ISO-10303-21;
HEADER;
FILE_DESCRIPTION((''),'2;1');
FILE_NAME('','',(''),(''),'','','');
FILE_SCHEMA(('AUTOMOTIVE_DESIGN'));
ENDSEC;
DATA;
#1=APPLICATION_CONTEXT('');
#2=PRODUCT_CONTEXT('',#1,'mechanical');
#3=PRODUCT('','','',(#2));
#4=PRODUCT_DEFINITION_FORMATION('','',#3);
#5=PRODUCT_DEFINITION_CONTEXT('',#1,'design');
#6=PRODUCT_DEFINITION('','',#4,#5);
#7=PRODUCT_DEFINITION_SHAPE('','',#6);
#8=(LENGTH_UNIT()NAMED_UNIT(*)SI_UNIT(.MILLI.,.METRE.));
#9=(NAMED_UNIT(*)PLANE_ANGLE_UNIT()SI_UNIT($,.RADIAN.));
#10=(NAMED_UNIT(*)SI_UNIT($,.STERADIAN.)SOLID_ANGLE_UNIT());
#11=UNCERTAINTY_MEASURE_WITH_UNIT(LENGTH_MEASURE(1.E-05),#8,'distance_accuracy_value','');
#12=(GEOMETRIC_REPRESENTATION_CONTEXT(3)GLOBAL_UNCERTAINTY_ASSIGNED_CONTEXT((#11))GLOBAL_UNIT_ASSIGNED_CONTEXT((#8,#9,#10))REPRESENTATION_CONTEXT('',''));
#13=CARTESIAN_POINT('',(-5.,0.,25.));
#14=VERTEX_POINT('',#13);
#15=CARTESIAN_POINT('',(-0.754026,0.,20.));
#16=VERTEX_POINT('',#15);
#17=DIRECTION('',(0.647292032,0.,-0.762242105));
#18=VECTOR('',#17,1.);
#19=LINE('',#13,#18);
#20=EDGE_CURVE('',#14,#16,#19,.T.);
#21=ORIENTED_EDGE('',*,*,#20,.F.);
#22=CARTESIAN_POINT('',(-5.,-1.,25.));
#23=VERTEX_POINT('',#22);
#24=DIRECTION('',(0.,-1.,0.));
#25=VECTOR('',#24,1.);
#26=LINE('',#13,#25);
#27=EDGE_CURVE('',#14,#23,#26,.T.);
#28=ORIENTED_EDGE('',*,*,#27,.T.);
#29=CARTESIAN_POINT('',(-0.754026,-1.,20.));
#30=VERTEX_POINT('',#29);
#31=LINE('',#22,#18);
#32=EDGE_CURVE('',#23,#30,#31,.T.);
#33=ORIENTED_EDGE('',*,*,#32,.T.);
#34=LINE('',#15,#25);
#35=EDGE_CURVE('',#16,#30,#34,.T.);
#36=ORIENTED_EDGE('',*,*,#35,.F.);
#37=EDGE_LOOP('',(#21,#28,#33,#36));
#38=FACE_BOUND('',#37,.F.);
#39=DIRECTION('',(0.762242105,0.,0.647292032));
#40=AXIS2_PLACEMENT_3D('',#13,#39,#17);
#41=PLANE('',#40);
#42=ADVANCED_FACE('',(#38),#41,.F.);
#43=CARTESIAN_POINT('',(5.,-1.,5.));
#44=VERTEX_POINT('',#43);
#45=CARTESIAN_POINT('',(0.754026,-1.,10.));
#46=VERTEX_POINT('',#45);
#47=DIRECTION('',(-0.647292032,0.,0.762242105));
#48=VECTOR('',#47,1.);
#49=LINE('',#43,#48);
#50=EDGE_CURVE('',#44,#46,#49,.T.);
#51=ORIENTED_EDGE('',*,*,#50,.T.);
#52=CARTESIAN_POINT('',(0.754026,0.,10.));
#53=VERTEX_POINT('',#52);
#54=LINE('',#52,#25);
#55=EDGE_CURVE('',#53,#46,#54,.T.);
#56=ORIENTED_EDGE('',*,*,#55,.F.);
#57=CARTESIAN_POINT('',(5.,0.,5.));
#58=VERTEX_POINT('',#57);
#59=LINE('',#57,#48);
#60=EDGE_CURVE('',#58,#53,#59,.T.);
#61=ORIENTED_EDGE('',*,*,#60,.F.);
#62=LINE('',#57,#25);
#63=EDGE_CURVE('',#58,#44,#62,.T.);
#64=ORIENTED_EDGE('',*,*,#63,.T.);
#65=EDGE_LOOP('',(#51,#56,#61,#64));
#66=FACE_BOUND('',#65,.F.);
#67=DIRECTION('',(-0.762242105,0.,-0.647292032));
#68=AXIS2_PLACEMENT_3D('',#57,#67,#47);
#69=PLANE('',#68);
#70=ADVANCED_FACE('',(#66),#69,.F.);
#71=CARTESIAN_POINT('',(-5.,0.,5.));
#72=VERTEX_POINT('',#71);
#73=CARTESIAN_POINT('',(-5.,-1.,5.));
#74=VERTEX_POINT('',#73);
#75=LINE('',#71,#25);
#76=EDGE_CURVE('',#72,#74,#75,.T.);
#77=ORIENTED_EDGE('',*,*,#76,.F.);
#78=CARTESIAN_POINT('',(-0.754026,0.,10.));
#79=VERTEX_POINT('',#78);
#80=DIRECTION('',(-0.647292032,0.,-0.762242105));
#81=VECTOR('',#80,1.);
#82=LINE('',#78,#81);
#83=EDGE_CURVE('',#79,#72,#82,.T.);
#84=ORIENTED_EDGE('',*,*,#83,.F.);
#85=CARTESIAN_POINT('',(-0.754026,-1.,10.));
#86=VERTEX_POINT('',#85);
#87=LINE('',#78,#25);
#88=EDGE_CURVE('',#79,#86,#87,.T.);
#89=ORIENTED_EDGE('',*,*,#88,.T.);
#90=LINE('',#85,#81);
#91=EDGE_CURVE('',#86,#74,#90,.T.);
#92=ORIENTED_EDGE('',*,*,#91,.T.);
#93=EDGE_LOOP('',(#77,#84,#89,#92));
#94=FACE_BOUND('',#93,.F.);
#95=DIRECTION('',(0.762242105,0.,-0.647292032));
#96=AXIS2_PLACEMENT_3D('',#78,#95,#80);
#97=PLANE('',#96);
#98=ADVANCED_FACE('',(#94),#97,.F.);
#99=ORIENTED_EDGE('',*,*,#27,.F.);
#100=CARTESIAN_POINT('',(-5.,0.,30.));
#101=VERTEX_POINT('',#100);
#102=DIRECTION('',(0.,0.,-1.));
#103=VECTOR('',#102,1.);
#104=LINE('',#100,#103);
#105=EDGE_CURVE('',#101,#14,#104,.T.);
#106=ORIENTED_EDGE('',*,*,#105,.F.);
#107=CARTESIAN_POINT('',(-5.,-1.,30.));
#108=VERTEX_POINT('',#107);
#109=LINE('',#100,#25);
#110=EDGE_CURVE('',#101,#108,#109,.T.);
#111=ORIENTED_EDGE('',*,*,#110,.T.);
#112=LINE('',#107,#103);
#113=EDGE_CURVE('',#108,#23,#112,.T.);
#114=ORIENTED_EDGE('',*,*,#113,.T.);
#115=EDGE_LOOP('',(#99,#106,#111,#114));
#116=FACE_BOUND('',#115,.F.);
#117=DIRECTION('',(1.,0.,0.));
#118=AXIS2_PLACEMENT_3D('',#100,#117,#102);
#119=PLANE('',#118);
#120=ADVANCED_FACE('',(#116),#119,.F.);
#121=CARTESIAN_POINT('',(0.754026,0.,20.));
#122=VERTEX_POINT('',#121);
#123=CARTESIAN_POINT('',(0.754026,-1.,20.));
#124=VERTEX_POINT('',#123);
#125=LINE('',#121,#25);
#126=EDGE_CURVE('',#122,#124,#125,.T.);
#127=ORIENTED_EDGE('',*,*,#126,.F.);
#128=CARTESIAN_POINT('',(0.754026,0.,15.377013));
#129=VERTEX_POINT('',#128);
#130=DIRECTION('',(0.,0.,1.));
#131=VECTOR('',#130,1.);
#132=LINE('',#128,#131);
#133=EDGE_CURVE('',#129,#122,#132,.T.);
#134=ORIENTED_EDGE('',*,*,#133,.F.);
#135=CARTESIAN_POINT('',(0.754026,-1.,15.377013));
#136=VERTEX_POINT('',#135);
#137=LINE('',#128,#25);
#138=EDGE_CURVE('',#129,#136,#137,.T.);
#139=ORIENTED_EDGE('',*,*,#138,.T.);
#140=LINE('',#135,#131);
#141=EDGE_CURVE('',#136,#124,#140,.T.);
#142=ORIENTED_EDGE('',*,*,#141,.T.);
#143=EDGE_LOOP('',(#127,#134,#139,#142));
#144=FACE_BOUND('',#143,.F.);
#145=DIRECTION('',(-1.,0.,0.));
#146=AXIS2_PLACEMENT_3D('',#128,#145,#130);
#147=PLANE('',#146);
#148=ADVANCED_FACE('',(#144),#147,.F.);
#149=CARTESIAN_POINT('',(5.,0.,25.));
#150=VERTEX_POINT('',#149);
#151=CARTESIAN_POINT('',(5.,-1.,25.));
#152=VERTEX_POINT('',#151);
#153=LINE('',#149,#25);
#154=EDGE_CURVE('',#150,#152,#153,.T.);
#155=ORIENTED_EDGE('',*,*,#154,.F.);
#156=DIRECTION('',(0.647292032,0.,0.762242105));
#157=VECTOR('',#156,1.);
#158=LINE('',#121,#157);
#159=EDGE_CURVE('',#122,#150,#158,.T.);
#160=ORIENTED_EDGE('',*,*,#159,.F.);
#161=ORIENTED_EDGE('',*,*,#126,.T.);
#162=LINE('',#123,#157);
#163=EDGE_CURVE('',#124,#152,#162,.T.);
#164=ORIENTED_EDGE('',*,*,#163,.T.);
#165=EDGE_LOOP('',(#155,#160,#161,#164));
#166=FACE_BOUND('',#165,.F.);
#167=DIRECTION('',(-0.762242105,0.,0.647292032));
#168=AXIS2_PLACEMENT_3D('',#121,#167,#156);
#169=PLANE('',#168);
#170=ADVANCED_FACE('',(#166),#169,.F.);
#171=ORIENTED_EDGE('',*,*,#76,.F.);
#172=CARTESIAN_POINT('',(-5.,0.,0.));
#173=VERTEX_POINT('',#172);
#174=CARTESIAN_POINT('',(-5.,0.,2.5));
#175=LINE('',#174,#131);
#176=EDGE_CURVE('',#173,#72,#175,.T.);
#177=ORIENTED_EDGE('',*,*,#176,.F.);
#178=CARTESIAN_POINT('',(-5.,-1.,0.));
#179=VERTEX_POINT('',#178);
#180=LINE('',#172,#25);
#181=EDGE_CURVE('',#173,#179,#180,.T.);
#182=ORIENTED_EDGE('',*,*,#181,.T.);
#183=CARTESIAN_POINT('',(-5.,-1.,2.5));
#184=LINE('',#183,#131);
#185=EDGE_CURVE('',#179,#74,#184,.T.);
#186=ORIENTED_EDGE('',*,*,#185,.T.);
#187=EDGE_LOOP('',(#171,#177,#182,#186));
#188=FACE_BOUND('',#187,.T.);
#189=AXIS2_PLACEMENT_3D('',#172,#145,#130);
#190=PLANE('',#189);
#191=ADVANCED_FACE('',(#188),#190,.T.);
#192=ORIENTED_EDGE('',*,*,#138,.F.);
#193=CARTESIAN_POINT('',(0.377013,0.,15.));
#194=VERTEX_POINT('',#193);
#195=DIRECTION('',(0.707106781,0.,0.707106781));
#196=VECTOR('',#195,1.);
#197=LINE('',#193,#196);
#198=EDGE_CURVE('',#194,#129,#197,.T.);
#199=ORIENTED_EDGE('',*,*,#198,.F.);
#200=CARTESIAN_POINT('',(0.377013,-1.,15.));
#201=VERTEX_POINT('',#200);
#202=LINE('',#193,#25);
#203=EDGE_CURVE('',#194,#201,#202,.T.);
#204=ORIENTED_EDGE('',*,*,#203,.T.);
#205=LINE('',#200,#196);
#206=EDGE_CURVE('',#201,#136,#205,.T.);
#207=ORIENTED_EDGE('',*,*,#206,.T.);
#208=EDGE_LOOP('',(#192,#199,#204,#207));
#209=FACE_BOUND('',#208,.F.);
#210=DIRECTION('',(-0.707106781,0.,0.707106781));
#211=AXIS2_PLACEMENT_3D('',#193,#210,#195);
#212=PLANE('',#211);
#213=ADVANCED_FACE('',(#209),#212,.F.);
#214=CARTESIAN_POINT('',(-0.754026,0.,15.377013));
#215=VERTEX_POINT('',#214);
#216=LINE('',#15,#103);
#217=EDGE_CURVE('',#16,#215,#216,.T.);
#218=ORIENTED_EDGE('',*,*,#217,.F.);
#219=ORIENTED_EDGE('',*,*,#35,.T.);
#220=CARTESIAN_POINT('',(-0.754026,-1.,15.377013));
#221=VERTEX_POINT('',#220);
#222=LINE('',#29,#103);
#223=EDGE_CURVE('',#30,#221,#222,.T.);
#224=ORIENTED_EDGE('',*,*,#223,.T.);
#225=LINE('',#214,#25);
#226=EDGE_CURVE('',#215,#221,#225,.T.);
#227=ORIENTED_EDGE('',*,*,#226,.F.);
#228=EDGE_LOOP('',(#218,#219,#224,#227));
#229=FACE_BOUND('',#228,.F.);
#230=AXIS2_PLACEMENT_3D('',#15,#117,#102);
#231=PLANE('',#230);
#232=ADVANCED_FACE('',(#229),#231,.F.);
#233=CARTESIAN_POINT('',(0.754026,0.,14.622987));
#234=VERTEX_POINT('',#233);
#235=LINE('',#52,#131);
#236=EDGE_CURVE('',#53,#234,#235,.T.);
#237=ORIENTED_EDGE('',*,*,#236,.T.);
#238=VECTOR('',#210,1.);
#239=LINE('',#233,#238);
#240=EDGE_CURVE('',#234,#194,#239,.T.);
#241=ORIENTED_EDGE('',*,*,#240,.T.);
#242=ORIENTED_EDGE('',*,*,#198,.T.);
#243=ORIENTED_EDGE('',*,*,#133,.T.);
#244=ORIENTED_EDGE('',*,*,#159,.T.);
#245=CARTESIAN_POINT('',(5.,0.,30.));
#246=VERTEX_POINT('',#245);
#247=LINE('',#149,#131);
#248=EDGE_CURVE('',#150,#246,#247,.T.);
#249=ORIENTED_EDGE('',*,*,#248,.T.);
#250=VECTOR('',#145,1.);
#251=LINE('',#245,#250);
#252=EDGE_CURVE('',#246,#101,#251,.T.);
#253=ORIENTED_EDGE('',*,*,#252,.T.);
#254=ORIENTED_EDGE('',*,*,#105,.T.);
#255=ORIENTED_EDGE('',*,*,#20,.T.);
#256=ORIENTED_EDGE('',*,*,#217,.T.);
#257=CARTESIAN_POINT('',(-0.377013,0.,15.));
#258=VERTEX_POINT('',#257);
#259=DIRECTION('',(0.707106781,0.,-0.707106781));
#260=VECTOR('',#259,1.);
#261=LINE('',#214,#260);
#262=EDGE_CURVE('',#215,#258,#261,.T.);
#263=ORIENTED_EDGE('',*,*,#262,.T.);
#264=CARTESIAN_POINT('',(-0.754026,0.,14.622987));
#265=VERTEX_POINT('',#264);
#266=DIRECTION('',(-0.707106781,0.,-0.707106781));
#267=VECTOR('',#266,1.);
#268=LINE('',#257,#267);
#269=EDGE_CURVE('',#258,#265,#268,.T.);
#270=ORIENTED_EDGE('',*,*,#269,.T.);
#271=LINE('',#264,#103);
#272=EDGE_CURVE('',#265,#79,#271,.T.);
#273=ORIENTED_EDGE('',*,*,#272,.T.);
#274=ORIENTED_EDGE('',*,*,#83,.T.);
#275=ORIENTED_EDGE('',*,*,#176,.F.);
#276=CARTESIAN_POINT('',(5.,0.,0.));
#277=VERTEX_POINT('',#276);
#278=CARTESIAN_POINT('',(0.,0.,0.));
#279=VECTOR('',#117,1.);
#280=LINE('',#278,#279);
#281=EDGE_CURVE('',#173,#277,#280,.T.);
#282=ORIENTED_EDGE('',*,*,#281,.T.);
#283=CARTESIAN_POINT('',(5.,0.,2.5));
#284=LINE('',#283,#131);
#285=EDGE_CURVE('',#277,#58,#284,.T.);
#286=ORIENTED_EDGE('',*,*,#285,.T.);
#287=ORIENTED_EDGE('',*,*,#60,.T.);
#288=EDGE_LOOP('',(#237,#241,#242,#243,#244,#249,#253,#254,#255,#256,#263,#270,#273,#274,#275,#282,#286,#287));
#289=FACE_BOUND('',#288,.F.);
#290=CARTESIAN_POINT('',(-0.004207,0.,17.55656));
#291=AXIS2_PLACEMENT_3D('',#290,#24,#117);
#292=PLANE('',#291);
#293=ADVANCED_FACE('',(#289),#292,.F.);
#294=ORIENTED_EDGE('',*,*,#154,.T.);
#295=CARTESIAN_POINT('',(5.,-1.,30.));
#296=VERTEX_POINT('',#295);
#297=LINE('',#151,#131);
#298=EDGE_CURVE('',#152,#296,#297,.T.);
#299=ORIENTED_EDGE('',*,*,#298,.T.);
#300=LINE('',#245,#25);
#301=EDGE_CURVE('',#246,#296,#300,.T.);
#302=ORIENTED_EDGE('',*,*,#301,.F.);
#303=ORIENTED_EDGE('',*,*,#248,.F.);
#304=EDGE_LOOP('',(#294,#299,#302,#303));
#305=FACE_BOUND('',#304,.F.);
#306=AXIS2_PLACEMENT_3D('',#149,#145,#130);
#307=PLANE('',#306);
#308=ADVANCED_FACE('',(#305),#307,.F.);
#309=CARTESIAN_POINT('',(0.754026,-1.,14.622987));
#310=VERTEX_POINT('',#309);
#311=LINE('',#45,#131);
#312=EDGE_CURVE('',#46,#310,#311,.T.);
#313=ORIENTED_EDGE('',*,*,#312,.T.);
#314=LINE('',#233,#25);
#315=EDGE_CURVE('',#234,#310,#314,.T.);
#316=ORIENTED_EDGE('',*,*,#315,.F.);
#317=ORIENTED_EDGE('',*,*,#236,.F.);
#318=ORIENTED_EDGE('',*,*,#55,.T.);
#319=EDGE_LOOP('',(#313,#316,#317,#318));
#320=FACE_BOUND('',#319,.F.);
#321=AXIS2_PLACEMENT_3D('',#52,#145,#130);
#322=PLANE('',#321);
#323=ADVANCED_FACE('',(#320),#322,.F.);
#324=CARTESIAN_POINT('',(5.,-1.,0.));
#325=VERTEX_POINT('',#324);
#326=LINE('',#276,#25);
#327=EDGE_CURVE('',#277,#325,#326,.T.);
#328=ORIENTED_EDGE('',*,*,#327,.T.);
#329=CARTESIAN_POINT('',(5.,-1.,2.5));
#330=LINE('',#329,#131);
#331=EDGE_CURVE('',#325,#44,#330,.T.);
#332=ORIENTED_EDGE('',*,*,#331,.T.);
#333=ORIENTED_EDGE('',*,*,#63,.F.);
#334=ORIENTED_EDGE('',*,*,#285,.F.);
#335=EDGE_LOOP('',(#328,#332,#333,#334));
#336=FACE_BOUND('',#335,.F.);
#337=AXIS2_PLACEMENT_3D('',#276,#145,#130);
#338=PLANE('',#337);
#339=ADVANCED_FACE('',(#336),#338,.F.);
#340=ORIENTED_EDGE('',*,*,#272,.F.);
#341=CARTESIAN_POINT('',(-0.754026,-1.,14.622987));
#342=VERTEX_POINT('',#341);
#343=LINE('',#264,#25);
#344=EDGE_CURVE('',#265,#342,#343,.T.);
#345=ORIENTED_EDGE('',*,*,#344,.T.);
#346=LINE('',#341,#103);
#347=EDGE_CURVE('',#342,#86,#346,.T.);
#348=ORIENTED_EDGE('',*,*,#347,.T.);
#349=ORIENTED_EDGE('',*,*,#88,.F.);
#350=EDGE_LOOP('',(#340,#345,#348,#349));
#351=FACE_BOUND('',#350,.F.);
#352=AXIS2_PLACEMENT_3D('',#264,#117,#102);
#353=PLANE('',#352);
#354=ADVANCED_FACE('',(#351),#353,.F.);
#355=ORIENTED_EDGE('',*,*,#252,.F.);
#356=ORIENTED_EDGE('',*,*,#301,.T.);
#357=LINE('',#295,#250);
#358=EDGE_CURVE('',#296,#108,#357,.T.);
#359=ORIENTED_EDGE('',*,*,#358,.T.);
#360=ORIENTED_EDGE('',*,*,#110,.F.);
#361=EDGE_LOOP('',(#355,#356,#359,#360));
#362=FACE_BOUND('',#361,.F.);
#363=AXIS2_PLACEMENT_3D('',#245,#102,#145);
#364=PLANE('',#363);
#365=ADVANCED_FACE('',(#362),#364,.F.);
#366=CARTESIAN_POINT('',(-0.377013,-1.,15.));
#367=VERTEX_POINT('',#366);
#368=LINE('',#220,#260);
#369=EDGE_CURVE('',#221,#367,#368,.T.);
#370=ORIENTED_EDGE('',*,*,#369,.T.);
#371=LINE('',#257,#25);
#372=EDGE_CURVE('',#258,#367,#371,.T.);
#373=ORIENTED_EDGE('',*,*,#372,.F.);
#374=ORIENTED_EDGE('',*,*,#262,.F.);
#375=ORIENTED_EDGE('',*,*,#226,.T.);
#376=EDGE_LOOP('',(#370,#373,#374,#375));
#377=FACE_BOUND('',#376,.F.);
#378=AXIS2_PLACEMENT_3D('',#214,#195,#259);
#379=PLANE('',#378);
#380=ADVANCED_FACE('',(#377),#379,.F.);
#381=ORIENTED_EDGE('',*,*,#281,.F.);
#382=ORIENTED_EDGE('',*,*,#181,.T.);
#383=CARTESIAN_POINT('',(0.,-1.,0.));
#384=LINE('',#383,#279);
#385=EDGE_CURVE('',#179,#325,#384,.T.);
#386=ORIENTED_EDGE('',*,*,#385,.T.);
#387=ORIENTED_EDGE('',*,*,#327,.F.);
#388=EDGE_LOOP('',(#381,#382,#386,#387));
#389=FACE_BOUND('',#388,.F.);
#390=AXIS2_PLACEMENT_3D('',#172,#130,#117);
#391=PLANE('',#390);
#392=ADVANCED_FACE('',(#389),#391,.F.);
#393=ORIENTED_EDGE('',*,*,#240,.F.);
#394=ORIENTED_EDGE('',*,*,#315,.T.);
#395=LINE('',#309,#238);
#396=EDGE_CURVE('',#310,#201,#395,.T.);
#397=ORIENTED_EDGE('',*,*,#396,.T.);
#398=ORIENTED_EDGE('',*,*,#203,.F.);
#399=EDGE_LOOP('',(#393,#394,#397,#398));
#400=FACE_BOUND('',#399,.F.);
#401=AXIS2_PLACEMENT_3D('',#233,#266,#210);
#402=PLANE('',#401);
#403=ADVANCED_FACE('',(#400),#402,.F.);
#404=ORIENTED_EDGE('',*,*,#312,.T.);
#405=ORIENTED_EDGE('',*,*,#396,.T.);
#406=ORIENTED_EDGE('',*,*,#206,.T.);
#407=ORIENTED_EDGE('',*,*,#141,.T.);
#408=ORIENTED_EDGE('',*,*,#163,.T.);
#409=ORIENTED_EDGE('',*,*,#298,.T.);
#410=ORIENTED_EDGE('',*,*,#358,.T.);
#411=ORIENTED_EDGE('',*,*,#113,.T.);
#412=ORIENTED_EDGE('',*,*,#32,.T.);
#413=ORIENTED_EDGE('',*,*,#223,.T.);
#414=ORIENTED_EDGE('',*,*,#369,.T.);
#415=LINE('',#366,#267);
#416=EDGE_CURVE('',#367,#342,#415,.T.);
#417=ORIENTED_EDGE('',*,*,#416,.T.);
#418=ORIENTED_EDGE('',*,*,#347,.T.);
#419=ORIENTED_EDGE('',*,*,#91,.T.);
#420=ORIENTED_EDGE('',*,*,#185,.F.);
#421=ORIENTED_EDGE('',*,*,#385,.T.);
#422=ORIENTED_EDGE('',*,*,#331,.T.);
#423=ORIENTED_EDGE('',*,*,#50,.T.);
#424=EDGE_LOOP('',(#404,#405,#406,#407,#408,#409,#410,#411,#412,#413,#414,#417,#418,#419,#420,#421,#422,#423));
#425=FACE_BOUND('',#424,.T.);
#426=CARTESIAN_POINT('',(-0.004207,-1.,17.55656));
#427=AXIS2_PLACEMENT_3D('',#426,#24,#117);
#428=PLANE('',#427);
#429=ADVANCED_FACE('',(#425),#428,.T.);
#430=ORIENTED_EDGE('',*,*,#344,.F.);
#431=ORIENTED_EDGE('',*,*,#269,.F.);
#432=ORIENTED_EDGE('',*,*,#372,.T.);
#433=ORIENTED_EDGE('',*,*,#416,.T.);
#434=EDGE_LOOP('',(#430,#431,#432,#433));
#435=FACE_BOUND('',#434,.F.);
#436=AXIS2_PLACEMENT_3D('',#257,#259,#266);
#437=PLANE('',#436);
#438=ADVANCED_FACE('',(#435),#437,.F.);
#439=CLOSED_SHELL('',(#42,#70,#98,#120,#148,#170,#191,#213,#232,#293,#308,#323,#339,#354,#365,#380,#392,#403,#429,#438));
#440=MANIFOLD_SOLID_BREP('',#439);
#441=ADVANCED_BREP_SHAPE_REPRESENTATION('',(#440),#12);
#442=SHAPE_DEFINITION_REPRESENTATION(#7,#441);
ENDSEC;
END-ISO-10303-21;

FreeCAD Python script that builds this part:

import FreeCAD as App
import Part
import Sketcher
from FreeCAD import Vector

doc = App.newDocument("Part")
body = doc.addObject("PartDesign::Body", "Body")

# Sketch on XZ plane
sketch1 = body.newObject("Sketcher::SketchObject", "Sketch")
sketch1.AttachmentSupport = (doc.getObject("XZ_Plane"), [""])
sketch1.MapMode = "FlatFace"
sketch1.addGeometry(Part.LineSegment(Vector(-0.4, 15, 0), Vector(-0.8, 14.6, 0)), False)
sketch1.addGeometry(Part.LineSegment(Vector(-0.8, 14.6, 0), Vector(-0.8, 10, 0)), False)
sketch1.addGeometry(Part.LineSegment(Vector(-0.8, 10, 0), Vector(-5, 5, 0)), False)
sketch1.addGeometry(Part.LineSegment(Vector(-5, 5, 0), Vector(-5, 0, 0)), False)
sketch1.addGeometry(Part.LineSegment(Vector(-5, 0, 0), Vector(5, 0, 0)), False)
sketch1.addGeometry(Part.LineSegment(Vector(5, 0, 0), Vector(5, 5, 0)), False)
sketch1.addGeometry(Part.LineSegment(Vector(5, 5, 0), Vector(0.8, 10, 0)), False)
sketch1.addGeometry(Part.LineSegment(Vector(0.8, 10, 0), Vector(0.8, 14.6, 0)), False)
sketch1.addGeometry(Part.LineSegment(Vector(0.8, 14.6, 0), Vector(0.4, 15, 0)), False)
sketch1.addGeometry(Part.LineSegment(Vector(0.4, 15, 0), Vector(0.8, 15.4, 0)), False)
sketch1.addGeometry(Part.LineSegment(Vector(0.8, 15.4, 0), Vector(0.8, 20, 0)), False)
sketch1.addGeometry(Part.LineSegment(Vector(0.8, 20, 0), Vector(5, 25, 0)), False)
sketch1.addGeometry(Part.LineSegment(Vector(5, 25, 0), Vector(5, 30, 0)), False)
sketch1.addGeometry(Part.LineSegment(Vector(5, 30, 0), Vector(-5, 30, 0)), False)
sketch1.addGeometry(Part.LineSegment(Vector(-5, 30, 0), Vector(-5, 25, 0)), False)
sketch1.addGeometry(Part.LineSegment(Vector(-5, 25, 0), Vector(-0.8, 20, 0)), False)
sketch1.addGeometry(Part.LineSegment(Vector(-0.8, 20, 0), Vector(-0.8, 15.4, 0)), False)
sketch1.addGeometry(Part.LineSegment(Vector(-0.8, 15.4, 0), Vector(-0.4, 15, 0)), False)
sketch1.addConstraint(Sketcher.Constraint("Coincident", 0, 2, 1, 1))
sketch1.addConstraint(Sketcher.Constraint("Coincident", 1, 2, 2, 1))
sketch1.addConstraint(Sketcher.Constraint("Coincident", 2, 2, 3, 1))
sketch1.addConstraint(Sketcher.Constraint("Coincident", 3, 2, 4, 1))
sketch1.addConstraint(Sketcher.Constraint("Coincident", 4, 2, 5, 1))
sketch1.addConstraint(Sketcher.Constraint("Coincident", 5, 2, 6, 1))
sketch1.addConstraint(Sketcher.Constraint("Coincident", 6, 2, 7, 1))
sketch1.addConstraint(Sketcher.Constraint("Coincident", 7, 2, 8, 1))
sketch1.addConstraint(Sketcher.Constraint("Coincident", 8, 2, 9, 1))
sketch1.addConstraint(Sketcher.Constraint("Coincident", 9, 2, 10, 1))
sketch1.addConstraint(Sketcher.Constraint("Coincident", 10, 2, 11, 1))
sketch1.addConstraint(Sketcher.Constraint("Coincident", 11, 2, 12, 1))
sketch1.addConstraint(Sketcher.Constraint("Coincident", 12, 2, 13, 1))
sketch1.addConstraint(Sketcher.Constraint("Coincident", 13, 2, 14, 1))
sketch1.addConstraint(Sketcher.Constraint("Coincident", 14, 2, 15, 1))
sketch1.addConstraint(Sketcher.Constraint("Coincident", 15, 2, 16, 1))
sketch1.addConstraint(Sketcher.Constraint("Coincident", 16, 2, 17, 1))
sketch1.addConstraint(Sketcher.Constraint("Coincident", 17, 2, 0, 1))
sketch1.addConstraint(Sketcher.Constraint("Vertical", 1))
sketch1.addConstraint(Sketcher.Constraint("Vertical", 3))
sketch1.addConstraint(Sketcher.Constraint("Horizontal", 4))
sketch1.addConstraint(Sketcher.Constraint("Vertical", 5))
sketch1.addConstraint(Sketcher.Constraint("Vertical", 7))
sketch1.addConstraint(Sketcher.Constraint("Vertical", 10))
sketch1.addConstraint(Sketcher.Constraint("Vertical", 12))
sketch1.addConstraint(Sketcher.Constraint("Horizontal", 13))
sketch1.addConstraint(Sketcher.Constraint("Vertical", 14))
sketch1.addConstraint(Sketcher.Constraint("Vertical", 16))
sketch1.addConstraint(Sketcher.Constraint("Symmetric", 3, 2, 4, 2, -1, 1))
sketch1.addConstraint(Sketcher.Constraint("Symmetric", 1, 2, 6, 2, -2))
sketch1.addConstraint(Sketcher.Constraint("Symmetric", 11, 2, 14, 2, -2))
sketch1.addConstraint(Sketcher.Constraint("Symmetric", 10, 2, 15, 2, -2))
sketch1.addConstraint(Sketcher.Constraint("Symmetric", 8, 2, 17, 2, -2))
sketch1.addConstraint(Sketcher.Constraint("Perpendicular", 0, 8))
sketch1.addConstraint(Sketcher.Constraint("Perpendicular", 8, 9))
sketch1.addConstraint(Sketcher.Constraint("Parallel", 2, 11))
sketch1.addConstraint(Sketcher.Constraint("Parallel", 6, 15))
sketch1.addConstraint(Sketcher.Constraint("Perpendicular", 9, 17))
sketch1.addConstraint(Sketcher.Constraint("Horizontal", 0, 2, 7, 2))
sketch1.addConstraint(Sketcher.Constraint("Vertical", 7, 2, 9, 2))
sketch1.addConstraint(Sketcher.Constraint("Vertical", 5, 2, 11, 2))
sketch1.addConstraint(Sketcher.Constraint("Equal", 7, 10))
sketch1.addConstraint(Sketcher.Constraint("Equal", 5, 12))
sketch1.addConstraint(Sketcher.Constraint("DistanceX", 4, 1, 4, 2, 10.0))
sketch1.addConstraint(Sketcher.Constraint("DistanceY", 3, 2, 3, 1, 5.0))
sketch1.addConstraint(Sketcher.Constraint("DistanceY", -1, 1, 1, 2, 10.0))
sketch1.addConstraint(Sketcher.Constraint("DistanceY", -1, 1, 8, 2, 15.0))
sketch1.addConstraint(Sketcher.Constraint("DistanceY", 1, 2, 1, 1, 4.622987))
sketch1.addConstraint(Sketcher.Constraint("DistanceX", 0, 2, 8, 2, 1.131039))
pad1 = body.newObject("PartDesign::Pad", "Pad")
pad1.Profile = sketch1
pad1.Length = 1

doc.recompute()
